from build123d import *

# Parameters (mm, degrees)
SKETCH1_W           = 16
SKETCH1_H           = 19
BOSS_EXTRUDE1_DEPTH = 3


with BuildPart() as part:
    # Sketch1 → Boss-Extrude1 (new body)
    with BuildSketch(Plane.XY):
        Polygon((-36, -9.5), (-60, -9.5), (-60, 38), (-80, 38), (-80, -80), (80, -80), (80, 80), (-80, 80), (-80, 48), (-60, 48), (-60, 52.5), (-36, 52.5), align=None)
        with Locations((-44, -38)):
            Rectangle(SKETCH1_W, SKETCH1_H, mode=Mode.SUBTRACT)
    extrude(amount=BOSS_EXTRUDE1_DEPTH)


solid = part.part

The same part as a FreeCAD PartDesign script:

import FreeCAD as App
import Part
import Sketcher
from FreeCAD import Vector
Q = App.Units.Quantity


def add_polygon(sketch, points):
    """Adds a closed chain of lines whose ends are joined by coincident constraints."""
    first, n = sketch.GeometryCount, len(points)
    for a, b in zip(points, points[1:] + points[:1]):
        sketch.addGeometry(Part.LineSegment(App.Vector(*a, 0), App.Vector(*b, 0)), False)
    for i in range(n):
        sketch.addConstraint(Sketcher.Constraint("Coincident", first + i, 2, first + (i + 1) % n, 1))

doc = App.newDocument("Part")
params = doc.addObject("Spreadsheet::Sheet", "Params")
for row, (alias, value) in enumerate([
    ("sketch1_width", "24 mm"),
    ("sketch1_width2", "20 mm"),
    ("sketch1_width3", "160 mm"),
    ("sketch1_width4", "16 mm"),
    ("sketch1_height", "118 mm"),
    ("pad1_length", "3 mm"),
], start=1):
    params.set(f"A{row}", alias)
    params.set(f"B{row}", "=" + value)
    params.setAlias(f"B{row}", alias)

body = doc.addObject("PartDesign::Body", "Body")

sketch1 = body.newObject("Sketcher::SketchObject", "Sketch")
sketch1.AttachmentSupport = (doc.getObject("XY_Plane"), [""])
sketch1.MapMode = "FlatFace"
add_polygon(sketch1, [(-36, -9.5), (-60, -9.5), (-60, 38), (-80, 38), (-80, -80), (80, -80), (80, 80), (-80, 80), (-80, 48), (-60, 48), (-60, 52.5), (-36, 52.5)])
add_polygon(sketch1, [(-36, -47.5), (-52, -47.5), (-52, -28.5), (-36, -28.5)])
sketch1.addConstraint([
    Sketcher.Constraint("Horizontal", 0),
    Sketcher.Constraint("Vertical", 1),
    Sketcher.Constraint("Horizontal", 2),
    Sketcher.Constraint("Vertical", 3),
    Sketcher.Constraint("Horizontal", 4),
    Sketcher.Constraint("Vertical", 5),
    Sketcher.Constraint("Horizontal", 6),
    Sketcher.Constraint("Vertical", 7),
    Sketcher.Constraint("Horizontal", 8),
    Sketcher.Constraint("Vertical", 9),
    Sketcher.Constraint("Horizontal", 10),
    Sketcher.Constraint("Vertical", 11),
    Sketcher.Constraint("Horizontal", 12),
    Sketcher.Constraint("Vertical", 13),
    Sketcher.Constraint("Horizontal", 14),
    Sketcher.Constraint("Vertical", 15),
    Sketcher.Constraint("Symmetric", 3, 2, 5, 2, -1, 1),
    Sketcher.Constraint("Vertical", 3, 2, 6, 2),
    Sketcher.Constraint("Vertical", 1, 2, 8, 2),
    Sketcher.Constraint("Vertical", 11, 2, 14, 2),
    Sketcher.Constraint("Equal", 6, 5),
    Sketcher.Constraint("DistanceX", 0, 2, 0, 1, Q("24 mm")),
    Sketcher.Constraint("DistanceX", 2, 2, 2, 1, Q("20 mm")),
    Sketcher.Constraint("DistanceX", 4, 1, 4, 2, Q("160 mm")),
    Sketcher.Constraint("DistanceX", 12, 2, 12, 1, Q("16 mm")),
    Sketcher.Constraint("DistanceY", 3, 2, 3, 1, Q("118 mm")),
    Sketcher.Constraint("DistanceY", 7, 2, 7, 1, Q("32 mm")),
    Sketcher.Constraint("DistanceY", 11, 2, 11, 1, Q("62 mm")),
    Sketcher.Constraint("DistanceY", 13, 1, 13, 2, Q("19 mm")),
    Sketcher.Constraint("DistanceY", 1, 1, 1, 2, Q("47.5 mm")),
    Sketcher.Constraint("DistanceY", 12, 2, 0, 2, Q("38 mm")),
])
sketch1.setExpression("Constraints[37]", "Params.sketch1_width")
sketch1.setExpression("Constraints[38]", "Params.sketch1_width2")
sketch1.setExpression("Constraints[39]", "Params.sketch1_width3")
sketch1.setExpression("Constraints[40]", "Params.sketch1_width4")
sketch1.setExpression("Constraints[41]", "Params.sketch1_height")
pad1 = body.newObject("PartDesign::Pad", "Pad")
pad1.Profile = sketch1
pad1.setExpression("Length", "Params.pad1_length")

doc.recompute()
